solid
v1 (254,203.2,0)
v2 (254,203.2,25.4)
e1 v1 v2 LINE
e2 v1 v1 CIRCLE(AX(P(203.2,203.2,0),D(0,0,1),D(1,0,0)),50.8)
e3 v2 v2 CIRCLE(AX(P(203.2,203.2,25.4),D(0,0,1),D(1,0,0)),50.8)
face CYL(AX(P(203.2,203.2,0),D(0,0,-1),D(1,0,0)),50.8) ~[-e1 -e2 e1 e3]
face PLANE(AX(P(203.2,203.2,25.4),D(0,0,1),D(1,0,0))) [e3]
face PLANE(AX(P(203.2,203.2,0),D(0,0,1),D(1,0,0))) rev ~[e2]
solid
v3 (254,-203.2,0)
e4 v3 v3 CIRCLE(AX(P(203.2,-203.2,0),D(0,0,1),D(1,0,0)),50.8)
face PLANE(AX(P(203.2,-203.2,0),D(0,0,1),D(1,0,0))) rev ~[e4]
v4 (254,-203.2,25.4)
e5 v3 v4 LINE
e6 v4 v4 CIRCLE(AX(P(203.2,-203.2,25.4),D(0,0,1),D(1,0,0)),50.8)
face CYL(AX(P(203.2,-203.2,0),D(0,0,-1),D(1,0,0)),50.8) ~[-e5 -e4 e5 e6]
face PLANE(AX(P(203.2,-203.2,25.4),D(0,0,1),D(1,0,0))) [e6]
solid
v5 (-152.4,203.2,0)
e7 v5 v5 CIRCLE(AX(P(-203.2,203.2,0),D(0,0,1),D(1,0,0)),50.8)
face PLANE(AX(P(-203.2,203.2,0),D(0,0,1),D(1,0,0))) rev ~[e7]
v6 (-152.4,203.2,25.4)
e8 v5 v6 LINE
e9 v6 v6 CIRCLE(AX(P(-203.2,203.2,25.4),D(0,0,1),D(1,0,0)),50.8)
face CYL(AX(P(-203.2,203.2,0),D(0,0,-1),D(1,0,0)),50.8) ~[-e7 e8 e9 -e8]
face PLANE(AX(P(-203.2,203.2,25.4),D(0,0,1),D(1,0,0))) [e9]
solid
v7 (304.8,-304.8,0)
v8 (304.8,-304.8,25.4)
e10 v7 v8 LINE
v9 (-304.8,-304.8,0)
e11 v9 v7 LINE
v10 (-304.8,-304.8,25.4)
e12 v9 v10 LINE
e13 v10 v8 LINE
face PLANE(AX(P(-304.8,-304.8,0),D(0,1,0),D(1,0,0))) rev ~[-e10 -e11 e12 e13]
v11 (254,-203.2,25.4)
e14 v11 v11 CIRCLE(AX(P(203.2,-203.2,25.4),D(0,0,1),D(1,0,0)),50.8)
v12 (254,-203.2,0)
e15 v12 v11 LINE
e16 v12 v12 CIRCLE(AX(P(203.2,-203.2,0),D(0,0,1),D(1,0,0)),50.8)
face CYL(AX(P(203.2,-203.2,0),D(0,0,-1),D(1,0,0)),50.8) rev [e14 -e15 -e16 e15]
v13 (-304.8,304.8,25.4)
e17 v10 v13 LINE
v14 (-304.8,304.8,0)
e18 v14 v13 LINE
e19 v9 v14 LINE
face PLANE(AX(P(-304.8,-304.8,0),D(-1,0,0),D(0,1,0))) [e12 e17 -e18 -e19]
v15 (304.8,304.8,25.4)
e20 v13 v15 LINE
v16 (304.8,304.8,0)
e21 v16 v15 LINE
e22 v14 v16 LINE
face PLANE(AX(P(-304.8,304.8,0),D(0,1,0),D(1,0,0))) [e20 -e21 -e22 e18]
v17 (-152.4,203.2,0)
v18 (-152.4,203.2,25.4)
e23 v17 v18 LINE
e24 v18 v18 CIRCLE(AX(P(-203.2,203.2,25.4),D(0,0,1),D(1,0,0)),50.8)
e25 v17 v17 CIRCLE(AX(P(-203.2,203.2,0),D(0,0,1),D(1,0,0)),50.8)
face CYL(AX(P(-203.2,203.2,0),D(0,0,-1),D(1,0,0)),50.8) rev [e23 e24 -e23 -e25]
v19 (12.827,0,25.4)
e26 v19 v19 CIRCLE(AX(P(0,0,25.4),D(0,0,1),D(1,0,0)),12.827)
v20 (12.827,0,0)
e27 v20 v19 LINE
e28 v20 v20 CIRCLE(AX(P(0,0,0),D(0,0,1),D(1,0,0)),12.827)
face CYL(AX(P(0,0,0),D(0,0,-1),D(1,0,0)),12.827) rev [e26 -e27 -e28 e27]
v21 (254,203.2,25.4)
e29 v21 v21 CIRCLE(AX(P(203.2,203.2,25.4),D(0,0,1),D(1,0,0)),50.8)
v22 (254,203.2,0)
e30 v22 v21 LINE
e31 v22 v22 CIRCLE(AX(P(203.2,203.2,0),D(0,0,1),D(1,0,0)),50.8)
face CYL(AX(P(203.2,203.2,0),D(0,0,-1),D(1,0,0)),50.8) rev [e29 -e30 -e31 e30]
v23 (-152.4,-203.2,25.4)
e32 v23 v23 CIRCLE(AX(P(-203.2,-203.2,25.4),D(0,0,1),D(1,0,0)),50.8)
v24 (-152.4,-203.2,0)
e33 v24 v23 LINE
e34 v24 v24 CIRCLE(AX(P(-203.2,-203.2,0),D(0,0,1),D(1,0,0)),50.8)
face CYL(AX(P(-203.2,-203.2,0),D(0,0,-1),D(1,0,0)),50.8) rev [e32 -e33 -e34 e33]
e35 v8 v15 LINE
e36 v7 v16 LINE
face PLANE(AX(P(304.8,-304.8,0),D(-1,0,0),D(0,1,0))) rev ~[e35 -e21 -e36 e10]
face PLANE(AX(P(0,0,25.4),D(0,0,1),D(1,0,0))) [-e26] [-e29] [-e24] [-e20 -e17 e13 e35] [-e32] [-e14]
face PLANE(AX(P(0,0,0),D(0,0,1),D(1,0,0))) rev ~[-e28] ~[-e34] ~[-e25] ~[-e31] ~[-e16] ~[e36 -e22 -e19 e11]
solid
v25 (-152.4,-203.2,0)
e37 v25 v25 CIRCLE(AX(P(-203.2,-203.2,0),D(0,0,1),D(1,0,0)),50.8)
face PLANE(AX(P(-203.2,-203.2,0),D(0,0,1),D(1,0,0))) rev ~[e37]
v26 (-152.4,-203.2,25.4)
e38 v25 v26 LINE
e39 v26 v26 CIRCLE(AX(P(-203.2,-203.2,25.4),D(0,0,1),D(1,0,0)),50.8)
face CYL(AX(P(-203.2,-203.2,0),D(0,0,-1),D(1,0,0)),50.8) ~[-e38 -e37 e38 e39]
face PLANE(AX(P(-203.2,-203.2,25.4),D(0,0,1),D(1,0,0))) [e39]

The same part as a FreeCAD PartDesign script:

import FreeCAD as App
import Part
import Sketcher

V = App.Vector
Q = App.Units.Quantity


def add_polygon(sketch, points):
    """Adds a closed chain of lines whose ends are joined by coincident constraints."""
    first, n = sketch.GeometryCount, len(points)
    for a, b in zip(points, points[1:] + points[:1]):
        sketch.addGeometry(Part.LineSegment(App.Vector(*a, 0), App.Vector(*b, 0)), False)
    for i in range(n):
        sketch.addConstraint(Sketcher.Constraint("Coincident", first + i, 2, first + (i + 1) % n, 1))

doc = App.newDocument("Part")
body = doc.addObject("PartDesign::Body", "Body")

sketch1 = body.newObject("Sketcher::SketchObject", "Sketch")
sketch1.AttachmentSupport = (doc.getObject("XY_Plane"), [""])
sketch1.MapMode = "FlatFace"
add_polygon(sketch1, [(-305, 305), (-305, -305), (305, -305), (305, 305)])
sketch1.addGeometry(Part.Circle(V(-203, -203, 0), V(0, 0, 1), 51), False)
sketch1.addGeometry(Part.Circle(V(203, -203, 0), V(0, 0, 1), 51), False)
sketch1.addGeometry(Part.Circle(V(-203, 203, 0), V(0, 0, 1), 51), False)
sketch1.addGeometry(Part.Circle(V(0, 0, 0), V(0, 0, 1), 13), False)
sketch1.addGeometry(Part.Circle(V(203, 203, 0), V(0, 0, 1), 51), False)
sketch1.addConstraint(Sketcher.Constraint("Vertical", 0))
sketch1.addConstraint(Sketcher.Constraint("Horizontal", 1))
sketch1.addConstraint(Sketcher.Constraint("Vertical", 2))
sketch1.addConstraint(Sketcher.Constraint("Horizontal", 3))
sketch1.addConstraint(Sketcher.Constraint("Coincident", 7, 3, -1, 1))
sketch1.addConstraint(Sketcher.Constraint("Equal", 4, 5))
sketch1.addConstraint(Sketcher.Constraint("Equal", 5, 6))
sketch1.addConstraint(Sketcher.Constraint("Equal", 6, 8))
sketch1.addConstraint(Sketcher.Constraint("Symmetric", 5, 3, 6, 3, -1, 1))
sketch1.addConstraint(Sketcher.Constraint("Symmetric", 4, 3, 8, 3, -1, 1))
sketch1.addConstraint(Sketcher.Constraint("Symmetric", 0, 2, 2, 2, -1, 1))
sketch1.addConstraint(Sketcher.Constraint("Symmetric", 4, 3, 5, 3, -2))
sketch1.addConstraint(Sketcher.Constraint("Equal", 3, 0))
sketch1.addConstraint(Sketcher.Constraint("Diameter", 4, Q("4 in")))
sketch1.addConstraint(Sketcher.Constraint("Diameter", 7, Q("1.01 in")))
sketch1.addConstraint(Sketcher.Constraint("DistanceX", 1, 1, 1, 2, Q("24 in")))
sketch1.addConstraint(Sketcher.Constraint("DistanceX", 4, 3, -1, 1, Q("8 in")))
sketch1.addConstraint(Sketcher.Constraint("DistanceY", 4, 3, -1, 1, Q("8 in")))
pad1 = body.newObject("PartDesign::Pad", "Pad")
pad1.Profile = sketch1
pad1.Length = Q("1 in")
body2 = doc.addObject("PartDesign::Body", "Body001")
body2.AllowCompound = True

sketch2 = body2.newObject("Sketcher::SketchObject", "Sketch001")
sketch2.AttachmentSupport = (doc.getObject("XY_Plane001"), [""])
sketch2.MapMode = "FlatFace"
sketch2.addGeometry(Part.Circle(V(-203, -203, 0), V(0, 0, 1), 51), False)
sketch2.addGeometry(Part.Circle(V(203, -203, 0), V(0, 0, 1), 51), False)
sketch2.addGeometry(Part.Circle(V(203, 203, 0), V(0, 0, 1), 51), False)
sketch2.addGeometry(Part.Circle(V(-203, 203, 0), V(0, 0, 1), 51), False)
sketch2.addConstraint(Sketcher.Constraint("Equal", 0, 1))
sketch2.addConstraint(Sketcher.Constraint("Equal", 1, 2))
sketch2.addConstraint(Sketcher.Constraint("Equal", 2, 3))
sketch2.addConstraint(Sketcher.Constraint("Symmetric", 0, 3, 2, 3, -1, 1))
sketch2.addConstraint(Sketcher.Constraint("Symmetric", 1, 3, 3, 3, -1, 1))
sketch2.addConstraint(Sketcher.Constraint("Symmetric", 0, 3, 1, 3, -2))
sketch2.addConstraint(Sketcher.Constraint("Diameter", 0, Q("4 in")))
sketch2.addConstraint(Sketcher.Constraint("DistanceX", 0, 3, -1, 1, Q("8 in")))
sketch2.addConstraint(Sketcher.Constraint("DistanceY", 0, 3, -1, 1, Q("8 in")))
pad2 = body2.newObject("PartDesign::Pad", "Pad001")
pad2.Profile = sketch2
pad2.Length = Q("1 in")

doc.recompute()
